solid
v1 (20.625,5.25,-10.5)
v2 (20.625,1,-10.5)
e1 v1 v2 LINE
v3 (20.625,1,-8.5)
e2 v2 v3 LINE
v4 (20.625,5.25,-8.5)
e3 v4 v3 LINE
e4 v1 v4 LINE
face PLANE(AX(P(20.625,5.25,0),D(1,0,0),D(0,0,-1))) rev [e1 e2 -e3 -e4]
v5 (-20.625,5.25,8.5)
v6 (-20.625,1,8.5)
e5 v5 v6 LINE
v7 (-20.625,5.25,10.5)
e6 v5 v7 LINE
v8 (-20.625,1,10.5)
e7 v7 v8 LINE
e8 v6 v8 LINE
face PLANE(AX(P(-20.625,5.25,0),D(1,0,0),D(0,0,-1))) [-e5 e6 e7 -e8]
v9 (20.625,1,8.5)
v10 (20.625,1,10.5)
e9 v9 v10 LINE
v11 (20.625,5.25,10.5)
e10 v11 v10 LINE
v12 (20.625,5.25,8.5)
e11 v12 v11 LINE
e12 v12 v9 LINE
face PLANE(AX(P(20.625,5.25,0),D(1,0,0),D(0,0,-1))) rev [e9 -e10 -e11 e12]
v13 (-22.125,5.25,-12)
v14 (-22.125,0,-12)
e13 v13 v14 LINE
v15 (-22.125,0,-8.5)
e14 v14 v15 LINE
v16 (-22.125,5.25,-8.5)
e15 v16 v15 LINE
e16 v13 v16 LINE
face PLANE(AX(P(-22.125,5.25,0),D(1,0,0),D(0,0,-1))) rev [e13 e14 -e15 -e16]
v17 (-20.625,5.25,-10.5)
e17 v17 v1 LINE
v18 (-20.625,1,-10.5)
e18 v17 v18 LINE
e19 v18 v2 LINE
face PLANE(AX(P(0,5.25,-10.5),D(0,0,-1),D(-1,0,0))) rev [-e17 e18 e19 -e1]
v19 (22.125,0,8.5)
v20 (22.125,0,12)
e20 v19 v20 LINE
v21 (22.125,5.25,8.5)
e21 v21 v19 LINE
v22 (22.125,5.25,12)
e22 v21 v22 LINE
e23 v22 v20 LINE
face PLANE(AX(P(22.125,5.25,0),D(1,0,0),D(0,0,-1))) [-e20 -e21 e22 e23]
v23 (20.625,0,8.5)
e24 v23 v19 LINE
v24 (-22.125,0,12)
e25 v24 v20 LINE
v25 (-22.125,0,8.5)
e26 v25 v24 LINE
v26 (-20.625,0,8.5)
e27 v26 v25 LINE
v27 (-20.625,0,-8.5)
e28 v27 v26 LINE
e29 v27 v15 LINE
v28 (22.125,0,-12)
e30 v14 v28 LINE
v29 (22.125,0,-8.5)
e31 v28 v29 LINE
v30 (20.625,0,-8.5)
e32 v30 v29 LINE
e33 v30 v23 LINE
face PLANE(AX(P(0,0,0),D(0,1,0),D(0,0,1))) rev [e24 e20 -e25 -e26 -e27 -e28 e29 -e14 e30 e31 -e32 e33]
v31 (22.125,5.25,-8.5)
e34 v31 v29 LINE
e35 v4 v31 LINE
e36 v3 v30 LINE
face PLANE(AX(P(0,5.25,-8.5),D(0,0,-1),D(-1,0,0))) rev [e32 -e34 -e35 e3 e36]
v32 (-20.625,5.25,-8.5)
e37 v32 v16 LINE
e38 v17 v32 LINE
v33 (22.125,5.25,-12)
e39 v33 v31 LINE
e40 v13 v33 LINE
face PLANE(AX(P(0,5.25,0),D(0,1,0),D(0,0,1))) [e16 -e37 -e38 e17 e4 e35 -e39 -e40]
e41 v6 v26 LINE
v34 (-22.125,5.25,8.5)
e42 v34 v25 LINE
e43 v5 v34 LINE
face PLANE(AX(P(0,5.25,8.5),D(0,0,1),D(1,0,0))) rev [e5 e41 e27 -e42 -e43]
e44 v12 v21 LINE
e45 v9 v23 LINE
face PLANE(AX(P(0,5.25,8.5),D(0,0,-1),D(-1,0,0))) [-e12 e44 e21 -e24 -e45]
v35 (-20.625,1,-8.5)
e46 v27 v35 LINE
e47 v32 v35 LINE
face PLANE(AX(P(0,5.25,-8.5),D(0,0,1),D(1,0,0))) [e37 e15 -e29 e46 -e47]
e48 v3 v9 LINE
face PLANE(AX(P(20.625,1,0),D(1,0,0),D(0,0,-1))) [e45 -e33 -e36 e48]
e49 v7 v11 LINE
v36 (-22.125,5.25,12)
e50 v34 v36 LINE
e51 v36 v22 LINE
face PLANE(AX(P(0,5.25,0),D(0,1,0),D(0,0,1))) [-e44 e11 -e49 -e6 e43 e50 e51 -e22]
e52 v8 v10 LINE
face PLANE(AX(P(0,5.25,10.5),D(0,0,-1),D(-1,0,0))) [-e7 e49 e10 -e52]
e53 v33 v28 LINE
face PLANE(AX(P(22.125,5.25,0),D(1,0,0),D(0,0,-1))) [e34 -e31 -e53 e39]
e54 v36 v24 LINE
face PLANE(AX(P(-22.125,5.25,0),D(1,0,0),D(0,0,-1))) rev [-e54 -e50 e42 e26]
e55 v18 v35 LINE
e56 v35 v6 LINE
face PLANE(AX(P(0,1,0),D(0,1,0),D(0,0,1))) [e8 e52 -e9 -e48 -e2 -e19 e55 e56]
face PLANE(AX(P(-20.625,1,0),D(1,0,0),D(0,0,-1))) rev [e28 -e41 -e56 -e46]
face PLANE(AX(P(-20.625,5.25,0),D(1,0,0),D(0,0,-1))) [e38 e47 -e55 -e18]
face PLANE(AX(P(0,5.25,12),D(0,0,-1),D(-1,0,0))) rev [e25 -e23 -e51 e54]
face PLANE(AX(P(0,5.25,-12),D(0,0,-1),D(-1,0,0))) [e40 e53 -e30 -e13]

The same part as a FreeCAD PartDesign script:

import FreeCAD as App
import Part
import Sketcher

V = App.Vector
Q = App.Units.Quantity

doc = App.newDocument("Part")
params = doc.addObject("Spreadsheet::Sheet", "Params")
for row, (alias, value) in enumerate([
    ("sketch1_height", "2 mm"),
    ("sketch1_width", "1.5 mm"),
    ("sketch1_height2", "3.5 mm"),
    ("sketch1_width2", "41.25 mm"),
    ("pad1_length", "5.25 mm"),
    ("sketch2_height", "21 mm"),
    ("sketch2_width", "41.25 mm"),
    ("pad2_length", "1 mm"),
], start=1):
    params.set(f"A{row}", alias)
    params.set(f"B{row}", "=" + value)
    params.setAlias(f"B{row}", alias)

body = doc.addObject("PartDesign::Body", "Body")
body.AllowCompound = True

sketch1 = body.newObject("Sketcher::SketchObject", "Sketch")
sketch1.AttachmentSupport = (doc.getObject("XZ_Plane"), [""])
sketch1.MapMode = "FlatFace"
sketch1.addGeometry(Part.LineSegment(V(20.625, 10.5, 0), V(-20.625, 10.5, 0)), False)
sketch1.addGeometry(Part.LineSegment(V(-20.625, 10.5, 0), V(-20.625, 8.5, 0)), False)
sketch1.addGeometry(Part.LineSegment(V(-20.625, 8.5, 0), V(-22.125, 8.5, 0)), False)
sketch1.addGeometry(Part.LineSegment(V(-22.125, 8.5, 0), V(-22.125, 12, 0)), False)
sketch1.addGeometry(Part.LineSegment(V(-22.125, 12, 0), V(22.125, 12, 0)), False)
sketch1.addGeometry(Part.LineSegment(V(22.125, 12, 0), V(22.125, 8.5, 0)), False)
sketch1.addGeometry(Part.LineSegment(V(22.125, 8.5, 0), V(20.625, 8.5, 0)), False)
sketch1.addGeometry(Part.LineSegment(V(20.625, 8.5, 0), V(20.625, 10.5, 0)), False)
sketch1.addGeometry(Part.LineSegment(V(-22.125, -12, 0), V(-22.125, -8.5, 0)), False)
sketch1.addGeometry(Part.LineSegment(V(-22.125, -8.5, 0), V(-20.625, -8.5, 0)), False)
sketch1.addGeometry(Part.LineSegment(V(-20.625, -8.5, 0), V(-20.625, -10.5, 0)), False)
sketch1.addGeometry(Part.LineSegment(V(-20.625, -10.5, 0), V(20.625, -10.5, 0)), False)
sketch1.addGeometry(Part.LineSegment(V(20.625, -10.5, 0), V(20.625, -8.5, 0)), False)
sketch1.addGeometry(Part.LineSegment(V(20.625, -8.5, 0), V(22.125, -8.5, 0)), False)
sketch1.addGeometry(Part.LineSegment(V(22.125, -8.5, 0), V(22.125, -12, 0)), False)
sketch1.addGeometry(Part.LineSegment(V(22.125, -12, 0), V(-22.125, -12, 0)), False)
sketch1.addConstraint(Sketcher.Constraint("Coincident", 0, 2, 1, 1))
sketch1.addConstraint(Sketcher.Constraint("Coincident", 1, 2, 2, 1))
sketch1.addConstraint(Sketcher.Constraint("Coincident", 2, 2, 3, 1))
sketch1.addConstraint(Sketcher.Constraint("Coincident", 3, 2, 4, 1))
sketch1.addConstraint(Sketcher.Constraint("Coincident", 4, 2, 5, 1))
sketch1.addConstraint(Sketcher.Constraint("Coincident", 5, 2, 6, 1))
sketch1.addConstraint(Sketcher.Constraint("Coincident", 6, 2, 7, 1))
sketch1.addConstraint(Sketcher.Constraint("Coincident", 7, 2, 0, 1))
sketch1.addConstraint(Sketcher.Constraint("Coincident", 8, 2, 9, 1))
sketch1.addConstraint(Sketcher.Constraint("Coincident", 9, 2, 10, 1))
sketch1.addConstraint(Sketcher.Constraint("Coincident", 10, 2, 11, 1))
sketch1.addConstraint(Sketcher.Constraint("Coincident", 11, 2, 12, 1))
sketch1.addConstraint(Sketcher.Constraint("Coincident", 12, 2, 13, 1))
sketch1.addConstraint(Sketcher.Constraint("Coincident", 13, 2, 14, 1))
sketch1.addConstraint(Sketcher.Constraint("Coincident", 14, 2, 15, 1))
sketch1.addConstraint(Sketcher.Constraint("Coincident", 15, 2, 8, 1))
sketch1.addConstraint(Sketcher.Constraint("Horizontal", 0))
sketch1.addConstraint(Sketcher.Constraint("Vertical", 1))
sketch1.addConstraint(Sketcher.Constraint("Horizontal", 2))
sketch1.addConstraint(Sketcher.Constraint("Vertical", 3))
sketch1.addConstraint(Sketcher.Constraint("Horizontal", 4))
sketch1.addConstraint(Sketcher.Constraint("Vertical", 5))
sketch1.addConstraint(Sketcher.Constraint("Horizontal", 6))
sketch1.addConstraint(Sketcher.Constraint("Vertical", 7))
sketch1.addConstraint(Sketcher.Constraint("Vertical", 8))
sketch1.addConstraint(Sketcher.Constraint("Horizontal", 9))
sketch1.addConstraint(Sketcher.Constraint("Vertical", 10))
sketch1.addConstraint(Sketcher.Constraint("Horizontal", 11))
sketch1.addConstraint(Sketcher.Constraint("Vertical", 12))
sketch1.addConstraint(Sketcher.Constraint("Horizontal", 13))
sketch1.addConstraint(Sketcher.Constraint("Vertical", 14))
sketch1.addConstraint(Sketcher.Constraint("Horizontal", 15))
sketch1.addConstraint(Sketcher.Constraint("Symmetric", 5, 2, 8, 2, -1, 1))
sketch1.addConstraint(Sketcher.Constraint("Symmetric", 7, 2, 10, 2, -1, 1))
sketch1.addConstraint(Sketcher.Constraint("Symmetric", 1, 2, 12, 2, -1, 1))
sketch1.addConstraint(Sketcher.Constraint("Symmetric", 3, 2, 14, 2, -1, 1))
sketch1.addConstraint(Sketcher.Constraint("Symmetric", 2, 2, 5, 2, -2))
sketch1.addConstraint(Sketcher.Constraint("Vertical", 1, 2, 9, 2))
sketch1.addConstraint(Sketcher.Constraint("DistanceY", 1, 2, 1, 1, Q("2 mm")))
sketch1.addConstraint(Sketcher.Constraint("DistanceX", 2, 2, 2, 1, Q("1.5 mm")))
sketch1.addConstraint(Sketcher.Constraint("DistanceY", 3, 1, 3, 2, Q("3.5 mm")))
sketch1.addConstraint(Sketcher.Constraint("DistanceY", -1, 1, 3, 2, Q("12 mm")))
sketch1.addConstraint(Sketcher.Constraint("DistanceX", 0, 2, 0, 1, Q("41.25 mm")))
sketch1.setExpression("Constraints[38]", "Params.sketch1_height")
sketch1.setExpression("Constraints[39]", "Params.sketch1_width")
sketch1.setExpression("Constraints[40]", "Params.sketch1_height2")
sketch1.setExpression("Constraints[42]", "Params.sketch1_width2")
pad1 = body.newObject("PartDesign::Pad", "Pad")
pad1.Profile = sketch1
pad1.setExpression("Length", "Params.pad1_length")
pad1.Reversed = True

sketch2 = body.newObject("Sketcher::SketchObject", "Sketch001")
sketch2.AttachmentSupport = (doc.getObject("XZ_Plane"), [""])
sketch2.MapMode = "FlatFace"
sketch2.addGeometry(Part.LineSegment(V(-20.625, -10.5, 0), V(-20.625, 10.5, 0)), False)
sketch2.addGeometry(Part.LineSegment(V(-20.625, 10.5, 0), V(20.625, 10.5, 0)), False)
sketch2.addGeometry(Part.LineSegment(V(20.625, 10.5, 0), V(20.625, -10.5, 0)), False)
sketch2.addGeometry(Part.LineSegment(V(20.625, -10.5, 0), V(-20.625, -10.5, 0)), False)
sketch2.addConstraint(Sketcher.Constraint("Coincident", 0, 2, 1, 1))
sketch2.addConstraint(Sketcher.Constraint("Coincident", 1, 2, 2, 1))
sketch2.addConstraint(Sketcher.Constraint("Coincident", 2, 2, 3, 1))
sketch2.addConstraint(Sketcher.Constraint("Coincident", 3, 2, 0, 1))
sketch2.addConstraint(Sketcher.Constraint("Vertical", 0))
sketch2.addConstraint(Sketcher.Constraint("Horizontal", 1))
sketch2.addConstraint(Sketcher.Constraint("Vertical", 2))
sketch2.addConstraint(Sketcher.Constraint("Horizontal", 3))
sketch2.addConstraint(Sketcher.Constraint("Symmetric", 0, 2, 2, 2, -1, 1))
sketch2.addConstraint(Sketcher.Constraint("DistanceY", 0, 1, 0, 2, Q("21 mm")))
sketch2.addConstraint(Sketcher.Constraint("DistanceX", 1, 1, 1, 2, Q("41.25 mm")))
sketch2.setExpression("Constraints[9]", "Params.sketch2_height")
sketch2.setExpression("Constraints[10]", "Params.sketch2_width")
pad2 = body.newObject("PartDesign::Pad", "Pad001")
pad2.Profile = sketch2
pad2.setExpression("Length", "Params.pad2_length")
pad2.Reversed = True

doc.recompute()
